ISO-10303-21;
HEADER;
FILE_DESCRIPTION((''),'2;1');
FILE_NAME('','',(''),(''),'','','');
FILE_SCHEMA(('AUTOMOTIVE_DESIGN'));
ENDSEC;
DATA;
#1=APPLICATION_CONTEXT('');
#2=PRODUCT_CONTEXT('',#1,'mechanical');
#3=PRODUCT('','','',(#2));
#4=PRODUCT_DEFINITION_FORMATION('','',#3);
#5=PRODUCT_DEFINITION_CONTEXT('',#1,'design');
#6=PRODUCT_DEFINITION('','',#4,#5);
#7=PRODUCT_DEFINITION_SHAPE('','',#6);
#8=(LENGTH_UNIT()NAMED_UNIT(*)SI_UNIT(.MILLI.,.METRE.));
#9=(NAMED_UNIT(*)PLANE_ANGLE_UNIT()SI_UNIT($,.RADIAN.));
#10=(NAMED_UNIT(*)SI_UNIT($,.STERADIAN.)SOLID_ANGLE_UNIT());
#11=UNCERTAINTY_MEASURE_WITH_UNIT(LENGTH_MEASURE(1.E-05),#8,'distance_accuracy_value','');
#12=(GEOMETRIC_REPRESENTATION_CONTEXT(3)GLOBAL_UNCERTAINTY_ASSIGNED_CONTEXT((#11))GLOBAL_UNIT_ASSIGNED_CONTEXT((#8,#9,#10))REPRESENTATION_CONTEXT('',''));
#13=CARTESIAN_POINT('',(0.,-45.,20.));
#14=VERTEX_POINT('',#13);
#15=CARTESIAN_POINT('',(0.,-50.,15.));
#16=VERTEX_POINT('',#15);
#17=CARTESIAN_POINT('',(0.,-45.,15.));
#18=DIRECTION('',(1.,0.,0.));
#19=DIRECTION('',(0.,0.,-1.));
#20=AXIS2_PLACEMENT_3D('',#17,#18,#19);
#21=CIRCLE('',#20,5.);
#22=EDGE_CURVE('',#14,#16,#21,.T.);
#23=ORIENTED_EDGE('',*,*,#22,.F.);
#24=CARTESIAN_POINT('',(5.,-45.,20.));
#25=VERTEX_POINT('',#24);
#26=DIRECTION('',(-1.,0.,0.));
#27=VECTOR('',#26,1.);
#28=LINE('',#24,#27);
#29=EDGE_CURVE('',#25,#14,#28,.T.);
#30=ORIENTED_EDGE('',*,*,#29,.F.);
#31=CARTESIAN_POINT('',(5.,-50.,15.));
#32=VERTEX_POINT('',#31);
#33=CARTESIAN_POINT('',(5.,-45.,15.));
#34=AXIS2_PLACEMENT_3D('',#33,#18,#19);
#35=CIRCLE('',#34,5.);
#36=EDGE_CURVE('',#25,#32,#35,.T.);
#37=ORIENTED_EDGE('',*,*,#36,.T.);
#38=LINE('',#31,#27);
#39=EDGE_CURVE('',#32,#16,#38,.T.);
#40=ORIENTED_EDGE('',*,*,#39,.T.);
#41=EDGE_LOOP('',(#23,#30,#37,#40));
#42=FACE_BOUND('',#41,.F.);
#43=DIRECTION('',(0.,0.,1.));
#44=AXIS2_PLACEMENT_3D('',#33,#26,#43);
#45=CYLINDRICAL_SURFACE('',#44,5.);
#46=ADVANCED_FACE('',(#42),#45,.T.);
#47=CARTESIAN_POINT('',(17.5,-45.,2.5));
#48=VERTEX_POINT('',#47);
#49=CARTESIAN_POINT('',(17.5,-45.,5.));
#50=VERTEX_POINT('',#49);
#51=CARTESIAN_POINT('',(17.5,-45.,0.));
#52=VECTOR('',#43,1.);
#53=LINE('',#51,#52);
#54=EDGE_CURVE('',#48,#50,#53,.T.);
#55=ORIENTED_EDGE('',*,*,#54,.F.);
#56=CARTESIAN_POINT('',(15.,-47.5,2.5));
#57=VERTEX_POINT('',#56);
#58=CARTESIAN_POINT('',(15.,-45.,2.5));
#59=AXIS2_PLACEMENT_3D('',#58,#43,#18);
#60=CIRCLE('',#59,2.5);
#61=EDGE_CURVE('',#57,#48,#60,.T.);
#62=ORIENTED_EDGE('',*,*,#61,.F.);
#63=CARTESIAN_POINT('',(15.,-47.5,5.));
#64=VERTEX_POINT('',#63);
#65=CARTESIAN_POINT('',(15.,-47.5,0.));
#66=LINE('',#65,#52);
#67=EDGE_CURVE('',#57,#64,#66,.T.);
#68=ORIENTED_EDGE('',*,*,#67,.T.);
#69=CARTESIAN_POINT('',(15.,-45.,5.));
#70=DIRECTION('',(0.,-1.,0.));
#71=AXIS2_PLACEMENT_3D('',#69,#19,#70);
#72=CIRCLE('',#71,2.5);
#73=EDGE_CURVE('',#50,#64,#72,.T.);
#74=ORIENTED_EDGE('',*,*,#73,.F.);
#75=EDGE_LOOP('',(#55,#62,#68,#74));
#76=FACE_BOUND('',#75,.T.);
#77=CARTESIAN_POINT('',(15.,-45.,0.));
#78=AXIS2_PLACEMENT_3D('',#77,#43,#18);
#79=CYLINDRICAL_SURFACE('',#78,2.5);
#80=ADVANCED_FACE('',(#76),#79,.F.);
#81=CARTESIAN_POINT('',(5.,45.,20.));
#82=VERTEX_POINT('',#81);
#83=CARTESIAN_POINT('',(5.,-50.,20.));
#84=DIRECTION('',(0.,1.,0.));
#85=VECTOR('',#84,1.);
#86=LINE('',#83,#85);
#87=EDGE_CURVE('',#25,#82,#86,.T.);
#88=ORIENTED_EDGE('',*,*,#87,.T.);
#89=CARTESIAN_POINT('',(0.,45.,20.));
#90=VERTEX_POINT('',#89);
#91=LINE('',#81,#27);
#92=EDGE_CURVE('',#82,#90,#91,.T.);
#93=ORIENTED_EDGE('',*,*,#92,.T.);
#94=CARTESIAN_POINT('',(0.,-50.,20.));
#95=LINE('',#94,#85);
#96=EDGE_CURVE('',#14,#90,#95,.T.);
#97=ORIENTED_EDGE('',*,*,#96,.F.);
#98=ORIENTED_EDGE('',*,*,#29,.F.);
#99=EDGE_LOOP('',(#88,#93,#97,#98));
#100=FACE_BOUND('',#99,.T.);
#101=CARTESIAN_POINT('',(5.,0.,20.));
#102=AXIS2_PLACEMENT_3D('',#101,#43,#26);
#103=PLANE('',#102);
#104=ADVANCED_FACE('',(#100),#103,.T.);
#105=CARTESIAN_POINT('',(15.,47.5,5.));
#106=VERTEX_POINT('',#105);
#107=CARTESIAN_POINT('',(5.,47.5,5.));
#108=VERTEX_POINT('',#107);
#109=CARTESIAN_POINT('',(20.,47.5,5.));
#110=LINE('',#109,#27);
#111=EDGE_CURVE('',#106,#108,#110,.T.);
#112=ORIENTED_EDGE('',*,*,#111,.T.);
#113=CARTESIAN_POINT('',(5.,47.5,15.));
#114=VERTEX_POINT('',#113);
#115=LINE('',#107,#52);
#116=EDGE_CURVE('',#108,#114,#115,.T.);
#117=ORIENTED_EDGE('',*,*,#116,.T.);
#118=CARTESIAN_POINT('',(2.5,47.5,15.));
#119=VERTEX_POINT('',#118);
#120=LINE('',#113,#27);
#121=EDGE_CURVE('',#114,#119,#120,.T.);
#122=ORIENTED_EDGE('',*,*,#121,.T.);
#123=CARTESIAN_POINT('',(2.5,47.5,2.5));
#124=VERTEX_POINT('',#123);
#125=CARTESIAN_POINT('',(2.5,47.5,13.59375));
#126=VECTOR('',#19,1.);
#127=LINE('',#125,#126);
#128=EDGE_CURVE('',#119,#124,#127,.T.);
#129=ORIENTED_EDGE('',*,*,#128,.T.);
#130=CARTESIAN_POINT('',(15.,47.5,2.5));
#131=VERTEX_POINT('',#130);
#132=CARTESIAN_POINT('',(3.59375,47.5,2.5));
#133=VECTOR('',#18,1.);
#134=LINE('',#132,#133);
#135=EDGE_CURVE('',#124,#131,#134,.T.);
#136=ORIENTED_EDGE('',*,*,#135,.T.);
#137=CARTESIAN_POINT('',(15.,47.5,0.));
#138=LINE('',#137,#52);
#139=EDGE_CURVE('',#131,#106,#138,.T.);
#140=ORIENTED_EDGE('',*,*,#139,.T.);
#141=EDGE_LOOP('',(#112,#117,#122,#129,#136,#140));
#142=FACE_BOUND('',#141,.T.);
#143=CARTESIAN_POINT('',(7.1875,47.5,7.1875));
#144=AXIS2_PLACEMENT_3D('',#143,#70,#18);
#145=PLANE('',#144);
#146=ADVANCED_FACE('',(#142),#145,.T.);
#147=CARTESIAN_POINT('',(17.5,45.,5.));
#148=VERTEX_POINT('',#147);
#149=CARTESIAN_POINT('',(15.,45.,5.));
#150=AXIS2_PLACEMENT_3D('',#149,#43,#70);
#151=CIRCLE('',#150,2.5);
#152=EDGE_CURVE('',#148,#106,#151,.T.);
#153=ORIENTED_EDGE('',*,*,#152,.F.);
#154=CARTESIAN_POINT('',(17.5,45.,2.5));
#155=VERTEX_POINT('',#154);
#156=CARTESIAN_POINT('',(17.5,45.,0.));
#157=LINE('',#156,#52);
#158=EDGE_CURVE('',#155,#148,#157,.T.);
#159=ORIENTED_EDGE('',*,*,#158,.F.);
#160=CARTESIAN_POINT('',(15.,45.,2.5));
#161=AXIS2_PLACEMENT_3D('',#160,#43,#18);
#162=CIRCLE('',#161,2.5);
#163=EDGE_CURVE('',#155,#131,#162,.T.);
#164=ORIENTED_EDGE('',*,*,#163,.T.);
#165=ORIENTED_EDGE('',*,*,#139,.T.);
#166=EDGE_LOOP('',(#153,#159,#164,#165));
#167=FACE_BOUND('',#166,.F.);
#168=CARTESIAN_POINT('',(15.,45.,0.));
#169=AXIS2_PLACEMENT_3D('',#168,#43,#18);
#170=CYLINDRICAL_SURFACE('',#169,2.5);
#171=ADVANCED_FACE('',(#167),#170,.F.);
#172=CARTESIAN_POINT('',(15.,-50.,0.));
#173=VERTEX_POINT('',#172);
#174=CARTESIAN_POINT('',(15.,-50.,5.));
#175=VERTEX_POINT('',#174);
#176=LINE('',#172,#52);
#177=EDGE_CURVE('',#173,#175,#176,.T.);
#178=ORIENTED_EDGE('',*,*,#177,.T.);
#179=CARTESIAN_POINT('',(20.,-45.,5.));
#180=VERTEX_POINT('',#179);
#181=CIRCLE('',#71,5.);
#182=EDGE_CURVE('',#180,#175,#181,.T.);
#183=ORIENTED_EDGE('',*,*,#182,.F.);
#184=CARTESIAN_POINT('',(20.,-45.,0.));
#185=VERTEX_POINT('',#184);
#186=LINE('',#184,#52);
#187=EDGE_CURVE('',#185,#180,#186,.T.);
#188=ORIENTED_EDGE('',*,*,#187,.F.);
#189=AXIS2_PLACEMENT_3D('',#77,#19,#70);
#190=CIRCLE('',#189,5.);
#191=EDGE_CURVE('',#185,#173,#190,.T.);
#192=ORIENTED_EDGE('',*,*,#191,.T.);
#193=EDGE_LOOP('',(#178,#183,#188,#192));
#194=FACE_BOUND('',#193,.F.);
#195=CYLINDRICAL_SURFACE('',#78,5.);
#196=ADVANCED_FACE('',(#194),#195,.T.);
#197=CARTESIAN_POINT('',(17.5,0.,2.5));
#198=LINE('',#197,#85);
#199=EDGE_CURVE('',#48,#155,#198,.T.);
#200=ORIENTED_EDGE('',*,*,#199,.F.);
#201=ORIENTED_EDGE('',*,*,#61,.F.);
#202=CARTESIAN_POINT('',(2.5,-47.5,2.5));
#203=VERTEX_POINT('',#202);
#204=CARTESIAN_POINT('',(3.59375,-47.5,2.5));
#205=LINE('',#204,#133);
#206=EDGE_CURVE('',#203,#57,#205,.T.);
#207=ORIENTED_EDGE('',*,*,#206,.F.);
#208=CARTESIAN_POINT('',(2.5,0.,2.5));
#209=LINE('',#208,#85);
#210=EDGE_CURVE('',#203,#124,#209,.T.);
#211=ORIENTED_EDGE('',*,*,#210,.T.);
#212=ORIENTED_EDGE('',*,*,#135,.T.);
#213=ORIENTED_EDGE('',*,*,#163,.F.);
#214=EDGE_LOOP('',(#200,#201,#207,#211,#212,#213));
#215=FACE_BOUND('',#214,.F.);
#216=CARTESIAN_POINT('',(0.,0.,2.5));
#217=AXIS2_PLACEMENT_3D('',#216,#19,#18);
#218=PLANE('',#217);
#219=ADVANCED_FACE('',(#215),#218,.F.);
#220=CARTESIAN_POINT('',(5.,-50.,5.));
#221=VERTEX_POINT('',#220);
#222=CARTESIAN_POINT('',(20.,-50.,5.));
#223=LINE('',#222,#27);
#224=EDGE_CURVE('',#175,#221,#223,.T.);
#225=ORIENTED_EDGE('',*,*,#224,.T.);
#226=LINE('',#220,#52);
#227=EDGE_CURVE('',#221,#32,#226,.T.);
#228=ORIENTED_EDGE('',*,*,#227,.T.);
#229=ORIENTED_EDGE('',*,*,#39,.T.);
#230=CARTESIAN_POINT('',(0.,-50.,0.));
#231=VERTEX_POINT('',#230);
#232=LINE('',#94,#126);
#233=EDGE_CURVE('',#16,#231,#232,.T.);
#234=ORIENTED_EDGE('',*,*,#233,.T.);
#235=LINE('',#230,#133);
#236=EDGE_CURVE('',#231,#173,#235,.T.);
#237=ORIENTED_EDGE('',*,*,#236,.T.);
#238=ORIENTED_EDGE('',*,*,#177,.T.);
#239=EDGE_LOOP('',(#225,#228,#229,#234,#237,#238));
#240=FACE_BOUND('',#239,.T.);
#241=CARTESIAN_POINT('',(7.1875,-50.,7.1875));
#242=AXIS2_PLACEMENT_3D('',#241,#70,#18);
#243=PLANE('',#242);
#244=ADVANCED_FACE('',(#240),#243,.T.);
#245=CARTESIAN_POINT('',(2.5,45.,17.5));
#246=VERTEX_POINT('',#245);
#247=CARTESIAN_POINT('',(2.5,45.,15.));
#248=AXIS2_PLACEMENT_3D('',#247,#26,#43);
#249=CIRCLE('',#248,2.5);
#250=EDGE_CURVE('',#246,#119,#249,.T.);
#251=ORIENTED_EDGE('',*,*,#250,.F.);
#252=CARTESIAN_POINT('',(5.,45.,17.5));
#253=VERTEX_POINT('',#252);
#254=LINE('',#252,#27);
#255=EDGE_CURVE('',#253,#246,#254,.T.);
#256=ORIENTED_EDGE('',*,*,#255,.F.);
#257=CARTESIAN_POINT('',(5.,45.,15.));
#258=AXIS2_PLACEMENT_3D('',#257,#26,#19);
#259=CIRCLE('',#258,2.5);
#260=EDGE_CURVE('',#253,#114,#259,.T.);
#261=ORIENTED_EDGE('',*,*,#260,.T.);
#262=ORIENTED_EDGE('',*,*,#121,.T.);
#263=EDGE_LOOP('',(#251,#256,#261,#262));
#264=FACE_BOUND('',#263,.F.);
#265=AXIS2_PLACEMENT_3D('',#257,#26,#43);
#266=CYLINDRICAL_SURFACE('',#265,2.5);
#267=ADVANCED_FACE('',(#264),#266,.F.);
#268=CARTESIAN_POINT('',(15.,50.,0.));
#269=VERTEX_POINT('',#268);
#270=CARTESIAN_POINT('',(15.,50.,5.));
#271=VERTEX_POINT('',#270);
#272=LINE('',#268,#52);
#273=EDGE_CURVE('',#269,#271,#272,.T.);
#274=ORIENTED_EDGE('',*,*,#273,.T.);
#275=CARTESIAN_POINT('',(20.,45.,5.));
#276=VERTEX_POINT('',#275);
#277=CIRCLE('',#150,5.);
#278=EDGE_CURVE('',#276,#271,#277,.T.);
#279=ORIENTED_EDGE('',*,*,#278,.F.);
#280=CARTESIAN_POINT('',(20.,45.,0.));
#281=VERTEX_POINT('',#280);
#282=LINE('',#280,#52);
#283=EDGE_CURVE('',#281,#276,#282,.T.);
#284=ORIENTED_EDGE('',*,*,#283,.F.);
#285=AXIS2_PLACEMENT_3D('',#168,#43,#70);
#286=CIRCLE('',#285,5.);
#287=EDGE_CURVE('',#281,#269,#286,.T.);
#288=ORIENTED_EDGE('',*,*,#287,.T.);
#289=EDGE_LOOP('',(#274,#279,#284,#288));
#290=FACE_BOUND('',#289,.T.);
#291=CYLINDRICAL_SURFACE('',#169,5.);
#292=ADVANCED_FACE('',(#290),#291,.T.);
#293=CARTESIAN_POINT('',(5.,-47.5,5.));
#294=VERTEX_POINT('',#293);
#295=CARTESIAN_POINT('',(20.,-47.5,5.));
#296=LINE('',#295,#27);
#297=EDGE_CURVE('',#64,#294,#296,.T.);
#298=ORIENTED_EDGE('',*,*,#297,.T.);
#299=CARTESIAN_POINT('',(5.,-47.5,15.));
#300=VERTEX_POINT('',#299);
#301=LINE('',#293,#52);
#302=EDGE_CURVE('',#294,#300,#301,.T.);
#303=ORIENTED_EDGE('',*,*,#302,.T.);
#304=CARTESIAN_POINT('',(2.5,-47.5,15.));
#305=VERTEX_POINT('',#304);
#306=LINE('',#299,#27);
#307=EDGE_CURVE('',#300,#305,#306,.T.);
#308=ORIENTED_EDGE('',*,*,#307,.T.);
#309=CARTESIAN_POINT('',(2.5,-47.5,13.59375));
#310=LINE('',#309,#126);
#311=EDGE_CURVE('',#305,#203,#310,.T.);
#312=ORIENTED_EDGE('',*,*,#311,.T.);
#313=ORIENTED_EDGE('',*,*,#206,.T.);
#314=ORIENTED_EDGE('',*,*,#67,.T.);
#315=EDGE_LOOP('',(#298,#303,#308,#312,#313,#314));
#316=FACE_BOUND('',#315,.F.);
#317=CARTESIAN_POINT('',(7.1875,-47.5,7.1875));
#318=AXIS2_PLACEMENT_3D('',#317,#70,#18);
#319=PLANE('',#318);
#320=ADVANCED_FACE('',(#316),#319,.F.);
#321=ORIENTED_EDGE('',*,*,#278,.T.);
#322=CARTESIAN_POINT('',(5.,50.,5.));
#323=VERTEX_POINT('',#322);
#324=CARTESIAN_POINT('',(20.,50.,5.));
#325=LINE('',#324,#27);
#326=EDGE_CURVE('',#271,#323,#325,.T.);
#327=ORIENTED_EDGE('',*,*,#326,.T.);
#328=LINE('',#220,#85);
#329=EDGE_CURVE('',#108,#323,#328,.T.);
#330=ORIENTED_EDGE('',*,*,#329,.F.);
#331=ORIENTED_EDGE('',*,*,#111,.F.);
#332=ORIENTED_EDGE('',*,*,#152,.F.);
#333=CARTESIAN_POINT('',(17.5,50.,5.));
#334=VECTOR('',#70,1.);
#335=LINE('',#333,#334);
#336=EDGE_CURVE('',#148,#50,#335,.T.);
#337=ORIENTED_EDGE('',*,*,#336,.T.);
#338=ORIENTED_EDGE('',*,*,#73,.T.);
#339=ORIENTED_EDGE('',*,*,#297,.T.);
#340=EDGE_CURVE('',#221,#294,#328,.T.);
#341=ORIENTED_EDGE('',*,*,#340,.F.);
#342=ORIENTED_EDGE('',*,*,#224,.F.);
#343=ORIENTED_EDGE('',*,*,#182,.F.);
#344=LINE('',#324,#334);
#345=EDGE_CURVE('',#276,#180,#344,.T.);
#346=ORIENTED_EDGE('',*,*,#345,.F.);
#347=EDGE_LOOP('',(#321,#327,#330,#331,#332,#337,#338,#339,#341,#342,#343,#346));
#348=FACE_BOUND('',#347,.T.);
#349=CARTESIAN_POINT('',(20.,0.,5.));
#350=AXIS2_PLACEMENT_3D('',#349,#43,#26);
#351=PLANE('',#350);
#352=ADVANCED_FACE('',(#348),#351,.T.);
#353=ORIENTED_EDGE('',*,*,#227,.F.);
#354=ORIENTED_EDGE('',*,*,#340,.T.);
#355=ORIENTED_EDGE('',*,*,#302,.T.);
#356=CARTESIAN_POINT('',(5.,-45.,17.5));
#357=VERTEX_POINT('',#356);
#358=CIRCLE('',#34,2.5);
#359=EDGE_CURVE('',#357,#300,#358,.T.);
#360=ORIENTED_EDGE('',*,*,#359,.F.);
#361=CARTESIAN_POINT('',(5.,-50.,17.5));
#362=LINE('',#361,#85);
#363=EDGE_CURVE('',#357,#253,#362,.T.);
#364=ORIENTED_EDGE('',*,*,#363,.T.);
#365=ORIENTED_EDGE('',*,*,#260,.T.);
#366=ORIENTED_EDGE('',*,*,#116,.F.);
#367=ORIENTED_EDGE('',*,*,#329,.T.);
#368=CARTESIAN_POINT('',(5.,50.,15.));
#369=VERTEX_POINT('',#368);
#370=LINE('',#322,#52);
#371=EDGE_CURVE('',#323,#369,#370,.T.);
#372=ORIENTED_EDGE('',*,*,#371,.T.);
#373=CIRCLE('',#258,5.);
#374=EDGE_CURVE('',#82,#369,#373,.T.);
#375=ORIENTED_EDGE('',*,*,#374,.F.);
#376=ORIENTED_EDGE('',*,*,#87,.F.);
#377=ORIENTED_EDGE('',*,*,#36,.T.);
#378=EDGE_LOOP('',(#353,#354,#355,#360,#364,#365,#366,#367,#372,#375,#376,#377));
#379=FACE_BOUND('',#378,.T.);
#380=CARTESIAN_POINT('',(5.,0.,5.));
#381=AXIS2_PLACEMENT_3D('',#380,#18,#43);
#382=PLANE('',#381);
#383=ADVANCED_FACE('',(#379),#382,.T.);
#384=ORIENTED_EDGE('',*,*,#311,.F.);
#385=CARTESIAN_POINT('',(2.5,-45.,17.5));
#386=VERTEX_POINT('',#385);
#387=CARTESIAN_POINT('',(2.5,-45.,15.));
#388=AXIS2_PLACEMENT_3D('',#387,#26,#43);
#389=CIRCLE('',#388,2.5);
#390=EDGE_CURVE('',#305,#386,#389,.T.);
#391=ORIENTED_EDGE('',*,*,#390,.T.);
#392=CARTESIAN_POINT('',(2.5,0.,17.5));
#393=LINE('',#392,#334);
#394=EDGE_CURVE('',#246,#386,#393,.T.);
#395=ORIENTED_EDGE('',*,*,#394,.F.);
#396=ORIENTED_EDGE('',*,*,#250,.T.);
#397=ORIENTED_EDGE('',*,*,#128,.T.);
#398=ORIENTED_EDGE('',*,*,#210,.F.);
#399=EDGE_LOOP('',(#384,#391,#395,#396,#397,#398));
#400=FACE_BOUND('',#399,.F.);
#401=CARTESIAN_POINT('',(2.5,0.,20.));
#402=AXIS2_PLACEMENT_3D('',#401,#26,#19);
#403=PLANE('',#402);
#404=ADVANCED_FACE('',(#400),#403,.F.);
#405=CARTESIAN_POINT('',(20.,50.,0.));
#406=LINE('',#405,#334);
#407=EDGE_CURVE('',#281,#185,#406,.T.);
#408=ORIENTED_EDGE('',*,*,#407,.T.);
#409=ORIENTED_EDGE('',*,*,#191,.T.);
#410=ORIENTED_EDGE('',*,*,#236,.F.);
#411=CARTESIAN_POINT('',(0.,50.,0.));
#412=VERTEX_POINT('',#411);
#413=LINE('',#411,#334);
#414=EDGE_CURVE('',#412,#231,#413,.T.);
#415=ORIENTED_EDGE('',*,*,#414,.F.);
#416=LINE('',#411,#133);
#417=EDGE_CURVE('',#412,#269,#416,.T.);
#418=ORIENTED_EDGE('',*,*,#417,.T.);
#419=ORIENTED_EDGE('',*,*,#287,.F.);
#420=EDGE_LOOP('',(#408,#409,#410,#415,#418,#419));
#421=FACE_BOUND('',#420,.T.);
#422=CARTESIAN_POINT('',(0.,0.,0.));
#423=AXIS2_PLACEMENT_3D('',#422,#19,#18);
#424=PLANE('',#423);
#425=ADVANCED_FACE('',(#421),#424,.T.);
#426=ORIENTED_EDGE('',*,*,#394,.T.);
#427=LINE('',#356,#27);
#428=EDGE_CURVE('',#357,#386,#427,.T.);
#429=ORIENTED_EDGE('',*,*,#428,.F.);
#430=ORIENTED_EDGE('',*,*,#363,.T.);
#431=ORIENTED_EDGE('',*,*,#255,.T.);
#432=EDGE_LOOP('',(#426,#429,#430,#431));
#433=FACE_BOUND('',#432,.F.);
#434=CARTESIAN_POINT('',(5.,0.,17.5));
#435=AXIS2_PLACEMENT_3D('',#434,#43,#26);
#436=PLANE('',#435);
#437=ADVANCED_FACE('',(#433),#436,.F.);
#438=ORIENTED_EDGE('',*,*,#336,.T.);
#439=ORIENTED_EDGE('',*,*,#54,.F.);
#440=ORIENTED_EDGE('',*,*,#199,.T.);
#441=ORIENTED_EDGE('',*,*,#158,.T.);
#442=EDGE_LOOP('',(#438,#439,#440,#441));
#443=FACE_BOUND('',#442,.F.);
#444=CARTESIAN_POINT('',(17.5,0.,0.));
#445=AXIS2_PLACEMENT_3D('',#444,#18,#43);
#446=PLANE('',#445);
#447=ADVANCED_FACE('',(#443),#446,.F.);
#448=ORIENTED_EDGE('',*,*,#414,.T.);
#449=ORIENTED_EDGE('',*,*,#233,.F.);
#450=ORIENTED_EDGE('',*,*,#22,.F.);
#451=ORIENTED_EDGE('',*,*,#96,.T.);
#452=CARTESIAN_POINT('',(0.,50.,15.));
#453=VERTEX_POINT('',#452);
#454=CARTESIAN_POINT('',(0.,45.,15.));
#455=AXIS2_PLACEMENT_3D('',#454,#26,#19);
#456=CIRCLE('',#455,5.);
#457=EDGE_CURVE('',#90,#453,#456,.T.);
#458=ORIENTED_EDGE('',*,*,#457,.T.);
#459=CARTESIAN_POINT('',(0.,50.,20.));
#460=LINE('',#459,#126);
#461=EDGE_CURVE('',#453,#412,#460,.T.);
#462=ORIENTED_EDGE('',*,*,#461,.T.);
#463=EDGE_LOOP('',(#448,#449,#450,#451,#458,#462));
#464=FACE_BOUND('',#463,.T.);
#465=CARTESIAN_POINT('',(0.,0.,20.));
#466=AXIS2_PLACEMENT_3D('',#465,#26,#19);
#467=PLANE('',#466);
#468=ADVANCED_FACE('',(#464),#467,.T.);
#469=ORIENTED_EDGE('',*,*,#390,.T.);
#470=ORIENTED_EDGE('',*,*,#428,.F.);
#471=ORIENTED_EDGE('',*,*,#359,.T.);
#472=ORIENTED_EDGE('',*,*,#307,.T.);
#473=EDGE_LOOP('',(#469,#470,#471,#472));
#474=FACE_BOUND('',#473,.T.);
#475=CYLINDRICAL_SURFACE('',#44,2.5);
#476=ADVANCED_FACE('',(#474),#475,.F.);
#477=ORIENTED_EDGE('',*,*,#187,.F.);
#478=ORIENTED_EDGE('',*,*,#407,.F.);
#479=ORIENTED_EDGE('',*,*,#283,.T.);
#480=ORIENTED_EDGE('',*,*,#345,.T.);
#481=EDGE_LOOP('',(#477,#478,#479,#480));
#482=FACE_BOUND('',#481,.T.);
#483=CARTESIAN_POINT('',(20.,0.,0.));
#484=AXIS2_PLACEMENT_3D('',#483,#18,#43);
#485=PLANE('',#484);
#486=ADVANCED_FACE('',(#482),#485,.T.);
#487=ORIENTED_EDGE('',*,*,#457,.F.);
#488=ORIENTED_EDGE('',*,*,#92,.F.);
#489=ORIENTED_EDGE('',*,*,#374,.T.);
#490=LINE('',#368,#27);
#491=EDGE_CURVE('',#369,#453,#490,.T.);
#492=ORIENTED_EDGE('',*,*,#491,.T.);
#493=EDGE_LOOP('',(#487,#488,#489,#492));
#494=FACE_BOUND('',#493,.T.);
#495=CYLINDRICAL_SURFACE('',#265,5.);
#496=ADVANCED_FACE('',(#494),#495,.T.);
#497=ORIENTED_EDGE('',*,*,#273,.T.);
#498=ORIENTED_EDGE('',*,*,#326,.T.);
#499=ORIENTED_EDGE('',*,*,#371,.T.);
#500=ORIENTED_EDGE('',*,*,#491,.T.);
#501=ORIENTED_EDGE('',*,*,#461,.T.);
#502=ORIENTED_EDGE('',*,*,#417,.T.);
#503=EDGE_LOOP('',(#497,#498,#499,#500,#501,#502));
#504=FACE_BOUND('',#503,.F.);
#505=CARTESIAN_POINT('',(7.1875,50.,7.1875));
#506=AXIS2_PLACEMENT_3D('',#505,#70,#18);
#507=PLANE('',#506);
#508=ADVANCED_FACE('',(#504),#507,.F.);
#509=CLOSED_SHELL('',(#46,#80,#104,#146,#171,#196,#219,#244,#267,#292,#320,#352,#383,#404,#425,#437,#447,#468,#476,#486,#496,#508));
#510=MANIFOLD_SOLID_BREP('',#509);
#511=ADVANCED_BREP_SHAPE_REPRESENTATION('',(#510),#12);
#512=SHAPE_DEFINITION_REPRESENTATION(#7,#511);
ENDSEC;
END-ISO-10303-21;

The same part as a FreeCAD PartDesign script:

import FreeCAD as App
import Part
import Sketcher

V = App.Vector
Q = App.Units.Quantity


def edges_at(feature, points):
    """Names of the edges that pass closest to the given points."""
    edges = feature.Shape.Edges
    near = lambda p: min(range(len(edges)), key=lambda i: edges[i].distToShape(Part.Vertex(*p))[0])
    return sorted({f"Edge{near(p) + 1}" for p in points})


def faces_at(feature, points):
    """Names of the faces that lie closest to the given points."""
    faces = feature.Shape.Faces
    near = lambda p: min(range(len(faces)), key=lambda i: faces[i].distToShape(Part.Vertex(*p))[0])
    return sorted({f"Face{near(p) + 1}" for p in points})

doc = App.newDocument("Part")
params = doc.addObject("Spreadsheet::Sheet", "Params")
for row, (alias, value) in enumerate([
    ("sketch1_width", "20 mm"),
    ("sketch1_width2", "15 mm"),
    ("pad1_length", "100 mm"),
    ("fillet_radius", "5 mm"),
    ("thickness_wall", "2.5 mm"),
], start=1):
    params.set(f"A{row}", alias)
    params.set(f"B{row}", "=" + value)
    params.setAlias(f"B{row}", alias)

body = doc.addObject("PartDesign::Body", "Body")

# Sketch on XZ plane
sketch1 = body.newObject("Sketcher::SketchObject", "Sketch")
sketch1.AttachmentSupport = (doc.getObject("XZ_Plane"), [""])
sketch1.MapMode = "FlatFace"
sketch1.addGeometry([
    Part.LineSegment(V(0, 20, 0), V(0, 0, 0)),  # 0
    Part.LineSegment(V(0, 0, 0), V(20, 0, 0)),  # 1
    Part.LineSegment(V(20, 0, 0), V(20, 5, 0)),  # 2
    Part.LineSegment(V(20, 5, 0), V(5, 5, 0)),  # 3
    Part.LineSegment(V(5, 5, 0), V(5, 20, 0)),  # 4
    Part.LineSegment(V(5, 20, 0), V(0, 20, 0)),  # 5
], False)
sketch1.addConstraint([
    Sketcher.Constraint("Coincident", 0, 2, 1, 1),
    Sketcher.Constraint("Coincident", 1, 2, 2, 1),
    Sketcher.Constraint("Coincident", 2, 2, 3, 1),
    Sketcher.Constraint("Coincident", 3, 2, 4, 1),
    Sketcher.Constraint("Coincident", 4, 2, 5, 1),
    Sketcher.Constraint("Coincident", 5, 2, 0, 1),
    Sketcher.Constraint("Vertical", 0),
    Sketcher.Constraint("Horizontal", 1),
    Sketcher.Constraint("Vertical", 2),
    Sketcher.Constraint("Horizontal", 3),
    Sketcher.Constraint("Vertical", 4),
    Sketcher.Constraint("Horizontal", 5),
    Sketcher.Constraint("Coincident", 0, 2, -1, 1),
    Sketcher.Constraint("Equal", 1, 0),
    Sketcher.Constraint("Equal", 5, 2),
    Sketcher.Constraint("DistanceX", 1, 1, 1, 2, Q("20 mm")),
    Sketcher.Constraint("DistanceX", 3, 2, 3, 1, Q("15 mm")),
])
sketch1.setExpression("Constraints[15]", "Params.sketch1_width")
sketch1.setExpression("Constraints[16]", "Params.sketch1_width2")
pad1 = body.newObject("PartDesign::Pad", "Pad")
pad1.Profile = sketch1
pad1.setExpression("Length", "Params.pad1_length")
pad1.Midplane = True
doc.recompute()

fillet = body.newObject("PartDesign::Fillet", "Fillet")
fillet.Base = (pad1, edges_at(pad1, [
    (2.5, -50, 20),
    (2.5, 50, 20),
    (20, -50, 2.5),
    (20, 50, 2.5),
]))
fillet.setExpression("Radius", "Params.fillet_radius")
doc.recompute()

thickness = body.newObject("PartDesign::Thickness", "Thickness")
thickness.Base = (fillet, faces_at(fillet, [(12.5, 0, 5), (5, 0, 12.5)]))
thickness.setExpression("Value", "Params.thickness_wall")
thickness.Reversed = True
thickness.Join = "Arc"

doc.recompute()
